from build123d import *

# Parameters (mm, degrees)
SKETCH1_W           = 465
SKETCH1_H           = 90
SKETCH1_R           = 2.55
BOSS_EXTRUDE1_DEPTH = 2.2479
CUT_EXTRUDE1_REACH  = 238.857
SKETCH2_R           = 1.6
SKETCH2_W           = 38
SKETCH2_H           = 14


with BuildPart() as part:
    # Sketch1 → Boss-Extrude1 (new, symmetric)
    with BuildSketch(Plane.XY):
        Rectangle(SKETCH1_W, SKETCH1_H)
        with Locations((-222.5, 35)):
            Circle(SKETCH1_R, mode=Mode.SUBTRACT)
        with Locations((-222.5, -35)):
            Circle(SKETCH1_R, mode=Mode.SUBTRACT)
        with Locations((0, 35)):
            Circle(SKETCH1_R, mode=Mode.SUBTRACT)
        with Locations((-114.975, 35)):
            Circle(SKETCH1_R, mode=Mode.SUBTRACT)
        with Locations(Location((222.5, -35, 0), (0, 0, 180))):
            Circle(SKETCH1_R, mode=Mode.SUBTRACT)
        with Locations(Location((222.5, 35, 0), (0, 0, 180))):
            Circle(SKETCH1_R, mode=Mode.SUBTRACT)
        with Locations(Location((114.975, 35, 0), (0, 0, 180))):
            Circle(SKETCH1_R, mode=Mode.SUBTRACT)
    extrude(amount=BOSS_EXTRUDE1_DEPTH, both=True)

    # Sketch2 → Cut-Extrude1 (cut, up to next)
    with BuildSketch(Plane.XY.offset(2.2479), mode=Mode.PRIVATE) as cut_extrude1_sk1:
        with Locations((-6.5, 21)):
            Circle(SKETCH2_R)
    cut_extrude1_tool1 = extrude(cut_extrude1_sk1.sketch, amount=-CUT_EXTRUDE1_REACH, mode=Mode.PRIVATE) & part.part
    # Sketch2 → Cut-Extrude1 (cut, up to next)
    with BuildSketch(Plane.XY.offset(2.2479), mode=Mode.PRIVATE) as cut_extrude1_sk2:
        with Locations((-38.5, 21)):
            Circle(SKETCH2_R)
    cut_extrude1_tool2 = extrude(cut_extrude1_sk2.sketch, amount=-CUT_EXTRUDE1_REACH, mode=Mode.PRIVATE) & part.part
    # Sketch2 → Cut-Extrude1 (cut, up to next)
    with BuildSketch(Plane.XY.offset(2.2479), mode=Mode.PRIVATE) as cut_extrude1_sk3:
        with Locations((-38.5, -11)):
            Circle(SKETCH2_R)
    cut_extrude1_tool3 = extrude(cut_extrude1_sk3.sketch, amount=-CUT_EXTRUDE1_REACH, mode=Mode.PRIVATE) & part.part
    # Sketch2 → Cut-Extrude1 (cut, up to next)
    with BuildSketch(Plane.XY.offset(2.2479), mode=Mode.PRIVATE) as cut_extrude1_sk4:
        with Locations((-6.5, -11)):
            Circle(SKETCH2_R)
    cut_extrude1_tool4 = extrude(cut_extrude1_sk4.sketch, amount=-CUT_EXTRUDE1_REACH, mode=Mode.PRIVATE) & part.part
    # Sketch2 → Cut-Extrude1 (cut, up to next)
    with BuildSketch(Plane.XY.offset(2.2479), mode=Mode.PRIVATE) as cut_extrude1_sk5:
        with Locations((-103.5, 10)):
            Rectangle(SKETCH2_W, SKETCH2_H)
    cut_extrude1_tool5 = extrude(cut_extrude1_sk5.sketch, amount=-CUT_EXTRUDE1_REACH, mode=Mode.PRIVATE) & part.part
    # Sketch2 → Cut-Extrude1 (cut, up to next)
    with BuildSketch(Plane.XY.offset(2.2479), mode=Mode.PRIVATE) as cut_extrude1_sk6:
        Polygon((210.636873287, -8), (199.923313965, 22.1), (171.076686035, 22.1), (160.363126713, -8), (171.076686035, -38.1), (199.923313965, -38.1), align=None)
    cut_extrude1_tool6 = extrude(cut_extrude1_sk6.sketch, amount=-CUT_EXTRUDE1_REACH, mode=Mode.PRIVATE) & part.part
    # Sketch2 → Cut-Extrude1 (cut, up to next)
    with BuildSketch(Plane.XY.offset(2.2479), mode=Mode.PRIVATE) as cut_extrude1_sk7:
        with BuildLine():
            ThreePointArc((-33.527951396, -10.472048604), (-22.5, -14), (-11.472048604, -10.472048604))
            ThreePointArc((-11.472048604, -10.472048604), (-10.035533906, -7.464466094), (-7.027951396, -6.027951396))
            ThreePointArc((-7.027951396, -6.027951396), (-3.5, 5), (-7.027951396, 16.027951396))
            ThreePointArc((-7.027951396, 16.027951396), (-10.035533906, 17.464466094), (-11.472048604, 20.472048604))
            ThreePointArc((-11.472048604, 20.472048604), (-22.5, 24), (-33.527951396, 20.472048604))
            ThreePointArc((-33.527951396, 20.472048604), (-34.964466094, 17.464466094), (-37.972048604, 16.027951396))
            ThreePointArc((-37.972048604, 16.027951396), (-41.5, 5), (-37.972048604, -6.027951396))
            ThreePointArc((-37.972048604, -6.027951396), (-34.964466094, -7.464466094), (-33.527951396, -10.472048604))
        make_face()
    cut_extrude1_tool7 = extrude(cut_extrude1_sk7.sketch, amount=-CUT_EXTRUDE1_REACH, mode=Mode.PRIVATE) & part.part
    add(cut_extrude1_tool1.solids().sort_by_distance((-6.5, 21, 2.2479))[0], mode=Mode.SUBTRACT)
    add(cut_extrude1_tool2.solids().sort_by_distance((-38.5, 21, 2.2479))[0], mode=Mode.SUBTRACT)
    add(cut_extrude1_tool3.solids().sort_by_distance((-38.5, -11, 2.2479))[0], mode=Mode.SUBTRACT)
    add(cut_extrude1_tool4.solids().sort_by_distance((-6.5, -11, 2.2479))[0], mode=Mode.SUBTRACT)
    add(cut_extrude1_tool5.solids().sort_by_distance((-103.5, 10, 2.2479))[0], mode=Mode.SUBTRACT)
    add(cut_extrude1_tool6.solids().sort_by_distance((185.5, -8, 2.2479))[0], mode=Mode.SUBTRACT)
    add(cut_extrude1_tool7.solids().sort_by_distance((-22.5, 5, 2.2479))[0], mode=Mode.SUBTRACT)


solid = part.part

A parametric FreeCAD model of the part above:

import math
import FreeCAD as App
import Part
import Sketcher
from FreeCAD import Vector
Q = App.Units.Quantity


def add_polygon(sketch, points):
    """Adds a closed chain of lines whose ends are joined by coincident constraints."""
    first, n = sketch.GeometryCount, len(points)
    for a, b in zip(points, points[1:] + points[:1]):
        sketch.addGeometry(Part.LineSegment(App.Vector(*a, 0), App.Vector(*b, 0)), False)
    for i in range(n):
        sketch.addConstraint(Sketcher.Constraint("Coincident", first + i, 2, first + (i + 1) % n, 1))

doc = App.newDocument("Part")
body = doc.addObject("PartDesign::Body", "Body")

sketch1 = body.newObject("Sketcher::SketchObject", "Sketch")
sketch1.AttachmentSupport = (doc.getObject("XY_Plane"), [""])
sketch1.MapMode = "FlatFace"
add_polygon(sketch1, [(-232.5, 45), (-232.5, -45), (232.5, -45), (232.5, 45)])
sketch1.addGeometry(Part.Circle(Vector(-222.5, -35, 0), Vector(0, 0, 1), 2.5), False)
sketch1.addGeometry(Part.Circle(Vector(222.5, -35, 0), Vector(0, 0, 1), 2.5), False)
sketch1.addGeometry(Part.Circle(Vector(-222.5, 35, 0), Vector(0, 0, 1), 2.5), False)
sketch1.addGeometry(Part.Circle(Vector(-115, 35, 0), Vector(0, 0, 1), 2.5), False)
sketch1.addGeometry(Part.Circle(Vector(0, 35, 0), Vector(0, 0, 1), 2.5), False)
sketch1.addGeometry(Part.Circle(Vector(115, 35, 0), Vector(0, 0, 1), 2.5), False)
sketch1.addGeometry(Part.Circle(Vector(222.5, 35, 0), Vector(0, 0, 1), 2.5), False)
sketch1.addConstraint([
    Sketcher.Constraint("Vertical", 0),
    Sketcher.Constraint("Horizontal", 1),
    Sketcher.Constraint("Vertical", 2),
    Sketcher.Constraint("Horizontal", 3),
    Sketcher.Constraint("Equal", 4, 5),
    Sketcher.Constraint("Equal", 5, 6),
    Sketcher.Constraint("Equal", 6, 7),
    Sketcher.Constraint("Equal", 7, 8),
    Sketcher.Constraint("Equal", 8, 9),
    Sketcher.Constraint("Equal", 9, 10),
    Sketcher.Constraint("Symmetric", 5, 3, 6, 3, -1, 1),
    Sketcher.Constraint("Symmetric", 4, 3, 10, 3, -1, 1),
    Sketcher.Constraint("Symmetric", 0, 2, 2, 2, -1, 1),
    Sketcher.Constraint("Symmetric", 4, 3, 5, 3, -2),
    Sketcher.Constraint("Symmetric", 7, 3, 9, 3, -2),
    Sketcher.Constraint("PointOnObject", 8, 3, -2),
    Sketcher.Constraint("Horizontal", 6, 3, 7, 3),
    Sketcher.Constraint("Horizontal", 7, 3, 8, 3),
    Sketcher.Constraint("Diameter", 4, Q("5.1 mm")),
    Sketcher.Constraint("DistanceX", 1, 1, 1, 2, Q("465 mm")),
    Sketcher.Constraint("DistanceY", 0, 2, 0, 1, Q("90 mm")),
    Sketcher.Constraint("DistanceY", 4, 3, -1, 1, Q("35 mm")),
    Sketcher.Constraint("DistanceX", 4, 3, 5, 3, Q("445 mm")),
    Sketcher.Constraint("DistanceX", 7, 3, 9, 3, Q("229.95 mm")),
])
pad1 = body.newObject("PartDesign::Pad", "Pad")
pad1.Profile = sketch1
pad1.Length = 4.4958
pad1.Midplane = True

sketch2 = body.newObject("Sketcher::SketchObject", "Sketch001")
sketch2.AttachmentSupport = (doc.getObject("XY_Plane"), [""])
sketch2.MapMode = "FlatFace"
sketch2.AttachmentOffset = App.Placement(Vector(0, 0, 2.2479), App.Rotation())
sketch2.addGeometry(Part.Circle(Vector(-6.5, 21, 0), Vector(0, 0, 1), 1.6), False)
sketch2.addConstraint([
    Sketcher.Constraint("Diameter", 0, Q("3.2 mm")),
    Sketcher.Constraint("DistanceY", -1, 1, 0, 3, Q("21 mm")),
    Sketcher.Constraint("DistanceX", 0, 3, -1, 1, Q("6.5 mm")),
])
pocket1 = body.newObject("PartDesign::Pocket", "Pocket")
pocket1.Profile = sketch2
pocket1.Type = "UpToFirst"

sketch3 = body.newObject("Sketcher::SketchObject", "Sketch002")
sketch3.AttachmentSupport = (doc.getObject("XY_Plane"), [""])
sketch3.MapMode = "FlatFace"
sketch3.AttachmentOffset = App.Placement(Vector(0, 0, 2.2479), App.Rotation())
sketch3.addGeometry(Part.Circle(Vector(-38.5, 21, 0), Vector(0, 0, 1), 1.6), False)
sketch3.addConstraint([
    Sketcher.Constraint("Diameter", 0, Q("3.2 mm")),
    Sketcher.Constraint("DistanceY", -1, 1, 0, 3, Q("21 mm")),
    Sketcher.Constraint("DistanceX", 0, 3, -1, 1, Q("38.5 mm")),
])
pocket2 = body.newObject("PartDesign::Pocket", "Pocket001")
pocket2.Profile = sketch3
pocket2.Type = "UpToFirst"

sketch4 = body.newObject("Sketcher::SketchObject", "Sketch003")
sketch4.AttachmentSupport = (doc.getObject("XY_Plane"), [""])
sketch4.MapMode = "FlatFace"
sketch4.AttachmentOffset = App.Placement(Vector(0, 0, 2.2479), App.Rotation())
sketch4.addGeometry(Part.Circle(Vector(-38.5, -11, 0), Vector(0, 0, 1), 1.6), False)
sketch4.addConstraint([
    Sketcher.Constraint("Diameter", 0, Q("3.2 mm")),
    Sketcher.Constraint("DistanceY", 0, 3, -1, 1, Q("11 mm")),
    Sketcher.Constraint("DistanceX", 0, 3, -1, 1, Q("38.5 mm")),
])
pocket3 = body.newObject("PartDesign::Pocket", "Pocket002")
pocket3.Profile = sketch4
pocket3.Type = "UpToFirst"

sketch5 = body.newObject("Sketcher::SketchObject", "Sketch004")
sketch5.AttachmentSupport = (doc.getObject("XY_Plane"), [""])
sketch5.MapMode = "FlatFace"
sketch5.AttachmentOffset = App.Placement(Vector(0, 0, 2.2479), App.Rotation())
sketch5.addGeometry(Part.Circle(Vector(-6.5, -11, 0), Vector(0, 0, 1), 1.6), False)
sketch5.addConstraint([
    Sketcher.Constraint("Diameter", 0, Q("3.2 mm")),
    Sketcher.Constraint("DistanceY", 0, 3, -1, 1, Q("11 mm")),
    Sketcher.Constraint("DistanceX", 0, 3, -1, 1, Q("6.5 mm")),
])
pocket4 = body.newObject("PartDesign::Pocket", "Pocket003")
pocket4.Profile = sketch5
pocket4.Type = "UpToFirst"

sketch6 = body.newObject("Sketcher::SketchObject", "Sketch005")
sketch6.AttachmentSupport = (doc.getObject("XY_Plane"), [""])
sketch6.MapMode = "FlatFace"
sketch6.AttachmentOffset = App.Placement(Vector(0, 0, 2.2479), App.Rotation())
add_polygon(sketch6, [(-122, 17), (-122, 3), (-84, 3), (-84, 17)])
sketch6.addConstraint([
    Sketcher.Constraint("Vertical", 0),
    Sketcher.Constraint("Horizontal", 1),
    Sketcher.Constraint("Vertical", 2),
    Sketcher.Constraint("Horizontal", 3),
    Sketcher.Constraint("DistanceX", 1, 1, 1, 2, Q("38 mm")),
    Sketcher.Constraint("DistanceY", 0, 2, 0, 1, Q("14 mm")),
    Sketcher.Constraint("DistanceY", -1, 1, 0, 2, Q("3 mm")),
    Sketcher.Constraint("DistanceX", 0, 2, -1, 1, Q("122.5 mm")),
])
pocket5 = body.newObject("PartDesign::Pocket", "Pocket004")
pocket5.Profile = sketch6
pocket5.Type = "UpToFirst"

sketch7 = body.newObject("Sketcher::SketchObject", "Sketch006")
sketch7.AttachmentSupport = (doc.getObject("XY_Plane"), [""])
sketch7.MapMode = "FlatFace"
sketch7.AttachmentOffset = App.Placement(Vector(0, 0, 2.2479), App.Rotation())
add_polygon(sketch7, [(211, -8), (200, 22), (171, 22), (160, -8), (171, -38), (200, -38)])
sketch7.addConstraint([
    Sketcher.Constraint("Horizontal", 1),
    Sketcher.Constraint("Horizontal", 4),
    Sketcher.Constraint("Parallel", 0, 3),
    Sketcher.Constraint("Parallel", 2, 5),
    Sketcher.Constraint("Horizontal", 2, 2, 5, 2),
    Sketcher.Constraint("Vertical", 1, 2, 3, 2),
    Sketcher.Constraint("Vertical", 0, 2, 4, 2),
    Sketcher.Constraint("DistanceY", 2, 2, -1, 1, Q("8 mm")),
    Sketcher.Constraint("DistanceY", -1, 1, 0, 2, Q("22.1 mm")),
    Sketcher.Constraint("Distance", 0, Q("31.94981 mm")),
    Sketcher.Constraint("DistanceX", 1, 2, 1, 1, Q("28.846628 mm")),
    Sketcher.Constraint("DistanceX", -1, 1, 0, 2, Q("199.923314 mm")),
])
pocket6 = body.newObject("PartDesign::Pocket", "Pocket005")
pocket6.Profile = sketch7
pocket6.Type = "UpToFirst"

sketch8 = body.newObject("Sketcher::SketchObject", "Sketch007")
sketch8.AttachmentSupport = (doc.getObject("XY_Plane"), [""])
sketch8.MapMode = "FlatFace"
sketch8.AttachmentOffset = App.Placement(Vector(0, 0, 2.2479), App.Rotation())
sketch8.addGeometry([
    Part.ArcOfCircle(Part.Circle(Vector(-22.5, 5, 0), Vector(0, 0, 1), 19), math.radians(-125), math.radians(-55)),
    Part.ArcOfCircle(Part.Circle(Vector(-6.5, -11, 0), Vector(0, 0, 1), 5), math.radians(96), math.radians(174)),
    Part.ArcOfCircle(Part.Circle(Vector(-22.5, 5, 0), Vector(0, 0, 1), 19), math.radians(-35), math.radians(35)),
    Part.ArcOfCircle(Part.Circle(Vector(-6.5, 21, 0), Vector(0, 0, 1), 5), math.radians(-174), math.radians(-96)),
    Part.ArcOfCircle(Part.Circle(Vector(-22.5, 5, 0), Vector(0, 0, 1), 19), math.radians(55), math.radians(125)),
    Part.ArcOfCircle(Part.Circle(Vector(-38.5, 21, 0), Vector(0, 0, 1), 5), math.radians(-84), math.radians(-6)),
    Part.ArcOfCircle(Part.Circle(Vector(-22.5, 5, 0), Vector(0, 0, 1), 19), math.radians(145), math.radians(215)),
    Part.ArcOfCircle(Part.Circle(Vector(-38.5, -11, 0), Vector(0, 0, 1), 5), math.radians(6), math.radians(84)),
], False)
sketch8.addConstraint([
    Sketcher.Constraint("Coincident", 0, 2, 1, 2),
    Sketcher.Constraint("Coincident", 1, 1, 2, 1),
    Sketcher.Constraint("Coincident", 2, 2, 3, 2),
    Sketcher.Constraint("Coincident", 3, 1, 4, 1),
    Sketcher.Constraint("Coincident", 4, 2, 5, 2),
    Sketcher.Constraint("Coincident", 5, 1, 6, 1),
    Sketcher.Constraint("Coincident", 6, 2, 7, 2),
    Sketcher.Constraint("Coincident", 7, 1, 0, 1),
    Sketcher.Constraint("Coincident", 2, 3, 0, 3),
    Sketcher.Constraint("Coincident", 4, 3, 0, 3),
    Sketcher.Constraint("Coincident", 6, 3, 0, 3),
    Sketcher.Constraint("Equal", 0, 2),
    Sketcher.Constraint("Equal", 1, 3),
    Sketcher.Constraint("Equal", 2, 4),
    Sketcher.Constraint("Equal", 3, 5),
    Sketcher.Constraint("Equal", 4, 6),
    Sketcher.Constraint("Equal", 5, 7),
    Sketcher.Constraint("Horizontal", 3, 3, 5, 3),
    Sketcher.Constraint("Horizontal", 1, 3, 7, 3),
    Sketcher.Constraint("Horizontal", 3, 1, 4, 2),
    Sketcher.Constraint("Horizontal", 1, 1, 6, 2),
    Sketcher.Constraint("Vertical", 1, 3, 3, 3),
    Sketcher.Constraint("Vertical", 1, 1, 2, 2),
    Sketcher.Constraint("Radius", 0, Q("19 mm")),
    Sketcher.Constraint("Radius", 1, Q("5 mm")),
    Sketcher.Constraint("DistanceY", -1, 1, 0, 3, Q("5 mm")),
    Sketcher.Constraint("DistanceY", 1, 3, -1, 1, Q("11 mm")),
    Sketcher.Constraint("DistanceX", 0, 3, 1, 3, Q("16 mm")),
    Sketcher.Constraint("DistanceX", 0, 3, -1, 1, Q("22.5 mm")),
])
pocket7 = body.newObject("PartDesign::Pocket", "Pocket006")
pocket7.Profile = sketch8
pocket7.Type = "UpToFirst"

doc.recompute()
